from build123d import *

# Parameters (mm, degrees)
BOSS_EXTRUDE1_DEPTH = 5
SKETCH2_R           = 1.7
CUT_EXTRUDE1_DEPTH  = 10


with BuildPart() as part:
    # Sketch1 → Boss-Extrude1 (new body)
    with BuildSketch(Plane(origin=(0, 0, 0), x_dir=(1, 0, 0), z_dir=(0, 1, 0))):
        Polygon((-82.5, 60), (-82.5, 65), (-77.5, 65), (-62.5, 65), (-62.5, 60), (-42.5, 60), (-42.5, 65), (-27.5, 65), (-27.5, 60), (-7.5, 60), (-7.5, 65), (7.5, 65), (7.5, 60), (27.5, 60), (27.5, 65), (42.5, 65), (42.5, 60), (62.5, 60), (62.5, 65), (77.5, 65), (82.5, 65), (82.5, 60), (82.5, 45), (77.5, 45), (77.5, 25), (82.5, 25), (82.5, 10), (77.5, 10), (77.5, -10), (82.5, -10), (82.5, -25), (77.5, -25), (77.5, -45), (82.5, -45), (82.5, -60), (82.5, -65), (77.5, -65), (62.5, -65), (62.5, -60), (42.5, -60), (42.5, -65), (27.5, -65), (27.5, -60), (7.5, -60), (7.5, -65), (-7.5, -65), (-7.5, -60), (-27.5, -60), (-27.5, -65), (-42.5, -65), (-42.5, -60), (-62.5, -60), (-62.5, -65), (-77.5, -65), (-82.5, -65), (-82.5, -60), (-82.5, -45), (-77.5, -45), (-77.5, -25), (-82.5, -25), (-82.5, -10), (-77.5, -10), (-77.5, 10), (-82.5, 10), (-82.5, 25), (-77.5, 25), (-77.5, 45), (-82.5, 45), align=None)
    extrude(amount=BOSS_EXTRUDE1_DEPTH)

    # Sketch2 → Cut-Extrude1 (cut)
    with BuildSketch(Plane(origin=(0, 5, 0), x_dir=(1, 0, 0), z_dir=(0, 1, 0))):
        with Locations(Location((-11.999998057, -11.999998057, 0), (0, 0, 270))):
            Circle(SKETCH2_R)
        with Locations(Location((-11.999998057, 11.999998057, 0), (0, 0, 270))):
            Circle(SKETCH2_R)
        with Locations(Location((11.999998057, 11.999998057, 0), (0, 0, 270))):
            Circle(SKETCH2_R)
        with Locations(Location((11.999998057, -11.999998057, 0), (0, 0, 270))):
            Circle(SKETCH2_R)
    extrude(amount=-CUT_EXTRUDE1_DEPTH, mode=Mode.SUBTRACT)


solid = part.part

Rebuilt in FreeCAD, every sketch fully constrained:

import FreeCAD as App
import Part
import Sketcher

V = App.Vector
Q = App.Units.Quantity

doc = App.newDocument("Part")
body = doc.addObject("PartDesign::Body", "Body")

# Sketch on XZ plane
sketch1 = doc.addObject("Sketcher::SketchObject", "Sketch")
body.addObject(sketch1)
sketch1.AttachmentSupport = (doc.XZ_Plane, [""])
sketch1.MapMode = "FlatFace"
sketch1.addGeometry([
    Part.LineSegment(V(-82.5, -65, 0), V(-82.5, -45, 0)),  # 0
    Part.LineSegment(V(-82.5, -45, 0), V(-77.5, -45, 0)),  # 1
    Part.LineSegment(V(-77.5, -45, 0), V(-77.5, -25, 0)),  # 2
    Part.LineSegment(V(-77.5, -25, 0), V(-82.5, -25, 0)),  # 3
    Part.LineSegment(V(-82.5, -25, 0), V(-82.5, -10, 0)),  # 4
    Part.LineSegment(V(-82.5, -10, 0), V(-77.5, -10, 0)),  # 5
    Part.LineSegment(V(-77.5, -10, 0), V(-77.5, 10, 0)),  # 6
    Part.LineSegment(V(-77.5, 10, 0), V(-82.5, 10, 0)),  # 7
    Part.LineSegment(V(-82.5, 10, 0), V(-82.5, 25, 0)),  # 8
    Part.LineSegment(V(-82.5, 25, 0), V(-77.5, 25, 0)),  # 9
    Part.LineSegment(V(-77.5, 25, 0), V(-77.5, 45, 0)),  # 10
    Part.LineSegment(V(-77.5, 45, 0), V(-82.5, 45, 0)),  # 11
    Part.LineSegment(V(-82.5, 45, 0), V(-82.5, 65, 0)),  # 12
    Part.LineSegment(V(-82.5, 65, 0), V(-62.5, 65, 0)),  # 13
    Part.LineSegment(V(-62.5, 65, 0), V(-62.5, 60, 0)),  # 14
    Part.LineSegment(V(-62.5, 60, 0), V(-42.5, 60, 0)),  # 15
    Part.LineSegment(V(-42.5, 60, 0), V(-42.5, 65, 0)),  # 16
    Part.LineSegment(V(-42.5, 65, 0), V(-27.5, 65, 0)),  # 17
    Part.LineSegment(V(-27.5, 65, 0), V(-27.5, 60, 0)),  # 18
    Part.LineSegment(V(-27.5, 60, 0), V(-7.5, 60, 0)),  # 19
    Part.LineSegment(V(-7.5, 60, 0), V(-7.5, 65, 0)),  # 20
    Part.LineSegment(V(-7.5, 65, 0), V(7.5, 65, 0)),  # 21
    Part.LineSegment(V(7.5, 65, 0), V(7.5, 60, 0)),  # 22
    Part.LineSegment(V(7.5, 60, 0), V(27.5, 60, 0)),  # 23
    Part.LineSegment(V(27.5, 60, 0), V(27.5, 65, 0)),  # 24
    Part.LineSegment(V(27.5, 65, 0), V(42.5, 65, 0)),  # 25
    Part.LineSegment(V(42.5, 65, 0), V(42.5, 60, 0)),  # 26
    Part.LineSegment(V(42.5, 60, 0), V(62.5, 60, 0)),  # 27
    Part.LineSegment(V(62.5, 60, 0), V(62.5, 65, 0)),  # 28
    Part.LineSegment(V(62.5, 65, 0), V(82.5, 65, 0)),  # 29
    Part.LineSegment(V(82.5, 65, 0), V(82.5, 45, 0)),  # 30
    Part.LineSegment(V(82.5, 45, 0), V(77.5, 45, 0)),  # 31
    Part.LineSegment(V(77.5, 45, 0), V(77.5, 25, 0)),  # 32
    Part.LineSegment(V(77.5, 25, 0), V(82.5, 25, 0)),  # 33
    Part.LineSegment(V(82.5, 25, 0), V(82.5, 10, 0)),  # 34
    Part.LineSegment(V(82.5, 10, 0), V(77.5, 10, 0)),  # 35
    Part.LineSegment(V(77.5, 10, 0), V(77.5, -10, 0)),  # 36
    Part.LineSegment(V(77.5, -10, 0), V(82.5, -10, 0)),  # 37
    Part.LineSegment(V(82.5, -10, 0), V(82.5, -25, 0)),  # 38
    Part.LineSegment(V(82.5, -25, 0), V(77.5, -25, 0)),  # 39
    Part.LineSegment(V(77.5, -25, 0), V(77.5, -45, 0)),  # 40
    Part.LineSegment(V(77.5, -45, 0), V(82.5, -45, 0)),  # 41
    Part.LineSegment(V(82.5, -45, 0), V(82.5, -65, 0)),  # 42
    Part.LineSegment(V(82.5, -65, 0), V(62.5, -65, 0)),  # 43
    Part.LineSegment(V(62.5, -65, 0), V(62.5, -60, 0)),  # 44
    Part.LineSegment(V(62.5, -60, 0), V(42.5, -60, 0)),  # 45
    Part.LineSegment(V(42.5, -60, 0), V(42.5, -65, 0)),  # 46
    Part.LineSegment(V(42.5, -65, 0), V(27.5, -65, 0)),  # 47
    Part.LineSegment(V(27.5, -65, 0), V(27.5, -60, 0)),  # 48
    Part.LineSegment(V(27.5, -60, 0), V(7.5, -60, 0)),  # 49
    Part.LineSegment(V(7.5, -60, 0), V(7.5, -65, 0)),  # 50
    Part.LineSegment(V(7.5, -65, 0), V(-7.5, -65, 0)),  # 51
    Part.LineSegment(V(-7.5, -65, 0), V(-7.5, -60, 0)),  # 52
    Part.LineSegment(V(-7.5, -60, 0), V(-27.5, -60, 0)),  # 53
    Part.LineSegment(V(-27.5, -60, 0), V(-27.5, -65, 0)),  # 54
    Part.LineSegment(V(-27.5, -65, 0), V(-42.5, -65, 0)),  # 55
    Part.LineSegment(V(-42.5, -65, 0), V(-42.5, -60, 0)),  # 56
    Part.LineSegment(V(-42.5, -60, 0), V(-62.5, -60, 0)),  # 57
    Part.LineSegment(V(-62.5, -60, 0), V(-62.5, -65, 0)),  # 58
    Part.LineSegment(V(-62.5, -65, 0), V(-82.5, -65, 0)),  # 59
], False)
sketch1.addConstraint([
    Sketcher.Constraint("Coincident", 0, 2, 1, 1),
    Sketcher.Constraint("Coincident", 1, 2, 2, 1),
    Sketcher.Constraint("Coincident", 2, 2, 3, 1),
    Sketcher.Constraint("Coincident", 3, 2, 4, 1),
    Sketcher.Constraint("Coincident", 4, 2, 5, 1),
    Sketcher.Constraint("Coincident", 5, 2, 6, 1),
    Sketcher.Constraint("Coincident", 6, 2, 7, 1),
    Sketcher.Constraint("Coincident", 7, 2, 8, 1),
    Sketcher.Constraint("Coincident", 8, 2, 9, 1),
    Sketcher.Constraint("Coincident", 9, 2, 10, 1),
    Sketcher.Constraint("Coincident", 10, 2, 11, 1),
    Sketcher.Constraint("Coincident", 11, 2, 12, 1),
    Sketcher.Constraint("Coincident", 12, 2, 13, 1),
    Sketcher.Constraint("Coincident", 13, 2, 14, 1),
    Sketcher.Constraint("Coincident", 14, 2, 15, 1),
    Sketcher.Constraint("Coincident", 15, 2, 16, 1),
    Sketcher.Constraint("Coincident", 16, 2, 17, 1),
    Sketcher.Constraint("Coincident", 17, 2, 18, 1),
    Sketcher.Constraint("Coincident", 18, 2, 19, 1),
    Sketcher.Constraint("Coincident", 19, 2, 20, 1),
    Sketcher.Constraint("Coincident", 20, 2, 21, 1),
    Sketcher.Constraint("Coincident", 21, 2, 22, 1),
    Sketcher.Constraint("Coincident", 22, 2, 23, 1),
    Sketcher.Constraint("Coincident", 23, 2, 24, 1),
    Sketcher.Constraint("Coincident", 24, 2, 25, 1),
    Sketcher.Constraint("Coincident", 25, 2, 26, 1),
    Sketcher.Constraint("Coincident", 26, 2, 27, 1),
    Sketcher.Constraint("Coincident", 27, 2, 28, 1),
    Sketcher.Constraint("Coincident", 28, 2, 29, 1),
    Sketcher.Constraint("Coincident", 29, 2, 30, 1),
    Sketcher.Constraint("Coincident", 30, 2, 31, 1),
    Sketcher.Constraint("Coincident", 31, 2, 32, 1),
    Sketcher.Constraint("Coincident", 32, 2, 33, 1),
    Sketcher.Constraint("Coincident", 33, 2, 34, 1),
    Sketcher.Constraint("Coincident", 34, 2, 35, 1),
    Sketcher.Constraint("Coincident", 35, 2, 36, 1),
    Sketcher.Constraint("Coincident", 36, 2, 37, 1),
    Sketcher.Constraint("Coincident", 37, 2, 38, 1),
    Sketcher.Constraint("Coincident", 38, 2, 39, 1),
    Sketcher.Constraint("Coincident", 39, 2, 40, 1),
    Sketcher.Constraint("Coincident", 40, 2, 41, 1),
    Sketcher.Constraint("Coincident", 41, 2, 42, 1),
    Sketcher.Constraint("Coincident", 42, 2, 43, 1),
    Sketcher.Constraint("Coincident", 43, 2, 44, 1),
    Sketcher.Constraint("Coincident", 44, 2, 45, 1),
    Sketcher.Constraint("Coincident", 45, 2, 46, 1),
    Sketcher.Constraint("Coincident", 46, 2, 47, 1),
    Sketcher.Constraint("Coincident", 47, 2, 48, 1),
    Sketcher.Constraint("Coincident", 48, 2, 49, 1),
    Sketcher.Constraint("Coincident", 49, 2, 50, 1),
    Sketcher.Constraint("Coincident", 50, 2, 51, 1),
    Sketcher.Constraint("Coincident", 51, 2, 52, 1),
    Sketcher.Constraint("Coincident", 52, 2, 53, 1),
    Sketcher.Constraint("Coincident", 53, 2, 54, 1),
    Sketcher.Constraint("Coincident", 54, 2, 55, 1),
    Sketcher.Constraint("Coincident", 55, 2, 56, 1),
    Sketcher.Constraint("Coincident", 56, 2, 57, 1),
    Sketcher.Constraint("Coincident", 57, 2, 58, 1),
    Sketcher.Constraint("Coincident", 58, 2, 59, 1),
    Sketcher.Constraint("Coincident", 59, 2, 0, 1),
    Sketcher.Constraint("Vertical", 0),
    Sketcher.Constraint("Horizontal", 1),
    Sketcher.Constraint("Vertical", 2),
    Sketcher.Constraint("Horizontal", 3),
    Sketcher.Constraint("Vertical", 4),
    Sketcher.Constraint("Horizontal", 5),
    Sketcher.Constraint("Vertical", 6),
    Sketcher.Constraint("Horizontal", 7),
    Sketcher.Constraint("Vertical", 8),
    Sketcher.Constraint("Horizontal", 9),
    Sketcher.Constraint("Vertical", 10),
    Sketcher.Constraint("Horizontal", 11),
    Sketcher.Constraint("Vertical", 12),
    Sketcher.Constraint("Horizontal", 13),
    Sketcher.Constraint("Vertical", 14),
    Sketcher.Constraint("Horizontal", 15),
    Sketcher.Constraint("Vertical", 16),
    Sketcher.Constraint("Horizontal", 17),
    Sketcher.Constraint("Vertical", 18),
    Sketcher.Constraint("Horizontal", 19),
    Sketcher.Constraint("Vertical", 20),
    Sketcher.Constraint("Horizontal", 21),
    Sketcher.Constraint("Vertical", 22),
    Sketcher.Constraint("Horizontal", 23),
    Sketcher.Constraint("Vertical", 24),
    Sketcher.Constraint("Horizontal", 25),
    Sketcher.Constraint("Vertical", 26),
    Sketcher.Constraint("Horizontal", 27),
    Sketcher.Constraint("Vertical", 28),
    Sketcher.Constraint("Horizontal", 29),
    Sketcher.Constraint("Vertical", 30),
    Sketcher.Constraint("Horizontal", 31),
    Sketcher.Constraint("Vertical", 32),
    Sketcher.Constraint("Horizontal", 33),
    Sketcher.Constraint("Vertical", 34),
    Sketcher.Constraint("Horizontal", 35),
    Sketcher.Constraint("Vertical", 36),
    Sketcher.Constraint("Horizontal", 37),
    Sketcher.Constraint("Vertical", 38),
    Sketcher.Constraint("Horizontal", 39),
    Sketcher.Constraint("Vertical", 40),
    Sketcher.Constraint("Horizontal", 41),
    Sketcher.Constraint("Vertical", 42),
    Sketcher.Constraint("Horizontal", 43),
    Sketcher.Constraint("Vertical", 44),
    Sketcher.Constraint("Horizontal", 45),
    Sketcher.Constraint("Vertical", 46),
    Sketcher.Constraint("Horizontal", 47),
    Sketcher.Constraint("Vertical", 48),
    Sketcher.Constraint("Horizontal", 49),
    Sketcher.Constraint("Vertical", 50),
    Sketcher.Constraint("Horizontal", 51),
    Sketcher.Constraint("Vertical", 52),
    Sketcher.Constraint("Horizontal", 53),
    Sketcher.Constraint("Vertical", 54),
    Sketcher.Constraint("Horizontal", 55),
    Sketcher.Constraint("Vertical", 56),
    Sketcher.Constraint("Horizontal", 57),
    Sketcher.Constraint("Vertical", 58),
    Sketcher.Constraint("Horizontal", 59),
    Sketcher.Constraint("Symmetric", 0, 2, 30, 2, -1, 1),
    Sketcher.Constraint("Symmetric", 2, 2, 32, 2, -1, 1),
    Sketcher.Constraint("Symmetric", 4, 2, 34, 2, -1, 1),
    Sketcher.Constraint("Symmetric", 6, 2, 36, 2, -1, 1),
    Sketcher.Constraint("Symmetric", 8, 2, 38, 2, -1, 1),
    Sketcher.Constraint("Symmetric", 10, 2, 40, 2, -1, 1),
    Sketcher.Constraint("Symmetric", 12, 2, 42, 2, -1, 1),
    Sketcher.Constraint("Symmetric", 14, 2, 44, 2, -1, 1),
    Sketcher.Constraint("Symmetric", 16, 2, 46, 2, -1, 1),
    Sketcher.Constraint("Symmetric", 18, 2, 48, 2, -1, 1),
    Sketcher.Constraint("Symmetric", 20, 2, 50, 2, -1, 1),
    Sketcher.Constraint("Symmetric", 22, 2, 52, 2, -1, 1),
    Sketcher.Constraint("Symmetric", 24, 2, 54, 2, -1, 1),
    Sketcher.Constraint("Symmetric", 26, 2, 56, 2, -1, 1),
    Sketcher.Constraint("Symmetric", 28, 2, 58, 2, -1, 1),
    Sketcher.Constraint("Symmetric", 19, 2, 22, 2, -2),
    Sketcher.Constraint("Symmetric", 17, 2, 24, 2, -2),
    Sketcher.Constraint("Symmetric", 15, 2, 26, 2, -2),
    Sketcher.Constraint("Symmetric", 13, 2, 28, 2, -2),
    Sketcher.Constraint("Symmetric", 11, 2, 30, 2, -2),
    Sketcher.Constraint("Symmetric", 9, 2, 32, 2, -2),
    Sketcher.Constraint("Symmetric", 7, 2, 34, 2, -2),
    Sketcher.Constraint("Horizontal", 13, 2, 16, 2),
    Sketcher.Constraint("Horizontal", 15, 2, 18, 2),
    Sketcher.Constraint("Horizontal", 17, 2, 20, 2),
    Sketcher.Constraint("Vertical", 0, 2, 3, 2),
    Sketcher.Constraint("Vertical", 2, 2, 5, 2),
    Sketcher.Constraint("Equal", 13, 15),
    Sketcher.Constraint("Equal", 15, 19),
    Sketcher.Constraint("Equal", 17, 21),
    Sketcher.Constraint("Equal", 59, 0),
    Sketcher.Constraint("Equal", 0, 2),
    Sketcher.Constraint("Equal", 55, 4),
    Sketcher.Constraint("Equal", 2, 6),
    Sketcher.Constraint("Equal", 41, 14),
    Sketcher.Constraint("DistanceX", 1, 1, 1, 2, Q("5 mm")),
    Sketcher.Constraint("DistanceX", 13, 1, 13, 2, Q("20 mm")),
    Sketcher.Constraint("DistanceX", 17, 1, 17, 2, Q("15 mm")),
])
pad1 = doc.addObject("PartDesign::Pad", "Pad")
body.addObject(pad1)
pad1.Profile = sketch1
pad1.Length = 5
pad1.Reversed = True

# Sketch on XZ plane
sketch2 = doc.addObject("Sketcher::SketchObject", "Sketch001")
body.addObject(sketch2)
sketch2.AttachmentSupport = (doc.XZ_Plane, [""])
sketch2.MapMode = "FlatFace"
sketch2.AttachmentOffset = App.Placement(V(0, 0, -5), App.Rotation())
sketch2.addGeometry([
    Part.Circle(V(-11.999998, 11.999998, 0), V(0, 0, 1), 1.7),
    Part.Circle(V(-11.999998, -11.999998, 0), V(0, 0, 1), 1.7),
    Part.Circle(V(11.999998, -11.999998, 0), V(0, 0, 1), 1.7),
    Part.Circle(V(11.999998, 11.999998, 0), V(0, 0, 1), 1.7),
], False)
sketch2.addConstraint([
    Sketcher.Constraint("Equal", 0, 1),
    Sketcher.Constraint("Equal", 1, 2),
    Sketcher.Constraint("Equal", 2, 3),
    Sketcher.Constraint("Symmetric", 0, 3, 2, 3, -1, 1),
    Sketcher.Constraint("Symmetric", 1, 3, 3, 3, -1, 1),
    Sketcher.Constraint("Symmetric", 1, 3, 2, 3, -2),
    Sketcher.Constraint("Diameter", 0, Q("3.4 mm")),
    Sketcher.Constraint("DistanceX", 0, 3, -1, 1, Q("11.999998 mm")),
    Sketcher.Constraint("DistanceY", -1, 1, 0, 3, Q("11.999998 mm")),
])
pocket1 = doc.addObject("PartDesign::Pocket", "Pocket")
body.addObject(pocket1)
pocket1.Profile = sketch2
pocket1.Length = 10
pocket1.Reversed = True

doc.recompute()
